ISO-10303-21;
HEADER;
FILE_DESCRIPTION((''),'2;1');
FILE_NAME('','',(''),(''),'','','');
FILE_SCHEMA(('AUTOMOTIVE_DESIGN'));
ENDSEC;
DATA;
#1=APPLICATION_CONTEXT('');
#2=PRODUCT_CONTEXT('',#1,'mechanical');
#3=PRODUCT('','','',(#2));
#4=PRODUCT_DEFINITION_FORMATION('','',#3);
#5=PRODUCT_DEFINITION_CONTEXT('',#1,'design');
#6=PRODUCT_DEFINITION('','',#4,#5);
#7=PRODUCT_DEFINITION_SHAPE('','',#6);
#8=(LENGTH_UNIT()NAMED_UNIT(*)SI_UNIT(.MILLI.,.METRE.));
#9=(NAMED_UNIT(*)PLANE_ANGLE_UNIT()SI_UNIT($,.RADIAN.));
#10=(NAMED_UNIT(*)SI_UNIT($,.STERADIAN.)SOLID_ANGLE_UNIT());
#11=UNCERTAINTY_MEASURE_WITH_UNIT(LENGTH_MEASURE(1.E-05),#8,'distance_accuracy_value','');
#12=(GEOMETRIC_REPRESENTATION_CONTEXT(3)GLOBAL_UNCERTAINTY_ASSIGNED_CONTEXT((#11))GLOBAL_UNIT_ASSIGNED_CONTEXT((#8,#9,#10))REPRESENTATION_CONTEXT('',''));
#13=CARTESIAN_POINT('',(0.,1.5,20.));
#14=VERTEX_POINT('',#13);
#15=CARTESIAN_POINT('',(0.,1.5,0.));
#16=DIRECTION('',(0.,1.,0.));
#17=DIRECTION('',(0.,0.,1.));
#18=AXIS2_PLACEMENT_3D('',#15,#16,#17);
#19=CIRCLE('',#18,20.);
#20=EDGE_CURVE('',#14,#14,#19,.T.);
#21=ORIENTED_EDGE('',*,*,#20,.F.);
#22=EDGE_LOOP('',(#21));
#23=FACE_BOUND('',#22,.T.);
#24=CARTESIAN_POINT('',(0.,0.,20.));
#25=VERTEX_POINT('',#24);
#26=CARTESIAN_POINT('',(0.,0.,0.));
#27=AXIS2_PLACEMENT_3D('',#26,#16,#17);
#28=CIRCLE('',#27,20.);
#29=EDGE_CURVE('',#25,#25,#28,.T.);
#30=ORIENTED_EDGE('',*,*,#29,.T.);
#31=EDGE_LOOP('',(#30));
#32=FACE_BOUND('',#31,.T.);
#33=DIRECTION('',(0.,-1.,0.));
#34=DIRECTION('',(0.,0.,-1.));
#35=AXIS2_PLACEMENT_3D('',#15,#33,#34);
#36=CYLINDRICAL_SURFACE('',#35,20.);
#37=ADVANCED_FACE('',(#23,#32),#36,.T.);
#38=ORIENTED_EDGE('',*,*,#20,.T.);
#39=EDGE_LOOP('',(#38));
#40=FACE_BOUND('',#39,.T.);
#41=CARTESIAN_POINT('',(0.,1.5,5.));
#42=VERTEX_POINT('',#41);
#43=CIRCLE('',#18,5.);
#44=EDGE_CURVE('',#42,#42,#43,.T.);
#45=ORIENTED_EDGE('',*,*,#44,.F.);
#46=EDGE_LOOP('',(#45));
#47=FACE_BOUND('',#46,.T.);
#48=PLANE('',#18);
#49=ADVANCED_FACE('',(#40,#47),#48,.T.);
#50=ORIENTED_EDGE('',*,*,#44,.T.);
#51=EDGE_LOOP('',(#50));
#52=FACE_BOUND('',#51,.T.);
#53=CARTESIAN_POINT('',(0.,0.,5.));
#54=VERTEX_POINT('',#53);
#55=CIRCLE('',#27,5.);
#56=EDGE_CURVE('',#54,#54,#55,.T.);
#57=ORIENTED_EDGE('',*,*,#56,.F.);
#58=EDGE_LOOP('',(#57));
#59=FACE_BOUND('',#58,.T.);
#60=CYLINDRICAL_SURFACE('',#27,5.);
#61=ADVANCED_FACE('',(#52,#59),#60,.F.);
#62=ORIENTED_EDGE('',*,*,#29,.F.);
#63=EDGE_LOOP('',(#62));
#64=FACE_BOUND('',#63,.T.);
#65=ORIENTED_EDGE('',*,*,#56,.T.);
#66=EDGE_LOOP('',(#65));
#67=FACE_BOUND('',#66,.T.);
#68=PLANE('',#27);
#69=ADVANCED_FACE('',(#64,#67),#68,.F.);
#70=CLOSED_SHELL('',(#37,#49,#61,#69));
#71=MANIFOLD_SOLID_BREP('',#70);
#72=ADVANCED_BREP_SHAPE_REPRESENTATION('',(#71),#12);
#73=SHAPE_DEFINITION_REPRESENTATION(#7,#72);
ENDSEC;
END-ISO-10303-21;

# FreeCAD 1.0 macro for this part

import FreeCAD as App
import Part
import Sketcher

doc = App.newDocument("Part")
params = doc.addObject("Spreadsheet::Sheet", "Params")
for row, (alias, value) in enumerate([
    ("sketch1_diameter", "40 mm"),
    ("pad1_length", "1.5 mm"),
    ("sketch2_diameter", "10 mm"),
    ("pocket1_length", "1.5 mm"),
], start=1):
    params.set(f"A{row}", alias)
    params.set(f"B{row}", "=" + value)
    params.setAlias(f"B{row}", alias)

body = doc.addObject("PartDesign::Body", "Body")

# Sketch on XZ plane
sketch1 = body.newObject("Sketcher::SketchObject", "Sketch")
sketch1.AttachmentSupport = (doc.getObject("XZ_Plane"), [""])
sketch1.MapMode = "FlatFace"
sketch1.addGeometry(Part.Circle(App.Vector(0, 0, 0), App.Vector(0, 0, 1), 20), False)
sketch1.addConstraint(Sketcher.Constraint("Coincident", 0, 3, -1, 1))
sketch1.addConstraint(Sketcher.Constraint("Diameter", 0, 40.0))
sketch1.setExpression("Constraints[1]", "Params.sketch1_diameter")
pad1 = body.newObject("PartDesign::Pad", "Pad")
pad1.Profile = sketch1
pad1.setExpression("Length", "Params.pad1_length")
pad1.Reversed = True

# Sketch on XZ plane
sketch2 = body.newObject("Sketcher::SketchObject", "Sketch001")
sketch2.AttachmentSupport = (doc.getObject("XZ_Plane"), [""])
sketch2.MapMode = "FlatFace"
sketch2.AttachmentOffset = App.Placement(App.Vector(0, 0, -1.5), App.Rotation())
sketch2.addGeometry(Part.Circle(App.Vector(0, 0, 0), App.Vector(0, 0, 1), 5), False)
sketch2.addConstraint(Sketcher.Constraint("Coincident", 0, 3, -1, 1))
sketch2.addConstraint(Sketcher.Constraint("Diameter", 0, 10.0))
sketch2.setExpression("Constraints[1]", "Params.sketch2_diameter")
pocket1 = body.newObject("PartDesign::Pocket", "Pocket")
pocket1.Profile = sketch2
pocket1.setExpression("Length", "Params.pocket1_length")
pocket1.Reversed = True

doc.recompute()
